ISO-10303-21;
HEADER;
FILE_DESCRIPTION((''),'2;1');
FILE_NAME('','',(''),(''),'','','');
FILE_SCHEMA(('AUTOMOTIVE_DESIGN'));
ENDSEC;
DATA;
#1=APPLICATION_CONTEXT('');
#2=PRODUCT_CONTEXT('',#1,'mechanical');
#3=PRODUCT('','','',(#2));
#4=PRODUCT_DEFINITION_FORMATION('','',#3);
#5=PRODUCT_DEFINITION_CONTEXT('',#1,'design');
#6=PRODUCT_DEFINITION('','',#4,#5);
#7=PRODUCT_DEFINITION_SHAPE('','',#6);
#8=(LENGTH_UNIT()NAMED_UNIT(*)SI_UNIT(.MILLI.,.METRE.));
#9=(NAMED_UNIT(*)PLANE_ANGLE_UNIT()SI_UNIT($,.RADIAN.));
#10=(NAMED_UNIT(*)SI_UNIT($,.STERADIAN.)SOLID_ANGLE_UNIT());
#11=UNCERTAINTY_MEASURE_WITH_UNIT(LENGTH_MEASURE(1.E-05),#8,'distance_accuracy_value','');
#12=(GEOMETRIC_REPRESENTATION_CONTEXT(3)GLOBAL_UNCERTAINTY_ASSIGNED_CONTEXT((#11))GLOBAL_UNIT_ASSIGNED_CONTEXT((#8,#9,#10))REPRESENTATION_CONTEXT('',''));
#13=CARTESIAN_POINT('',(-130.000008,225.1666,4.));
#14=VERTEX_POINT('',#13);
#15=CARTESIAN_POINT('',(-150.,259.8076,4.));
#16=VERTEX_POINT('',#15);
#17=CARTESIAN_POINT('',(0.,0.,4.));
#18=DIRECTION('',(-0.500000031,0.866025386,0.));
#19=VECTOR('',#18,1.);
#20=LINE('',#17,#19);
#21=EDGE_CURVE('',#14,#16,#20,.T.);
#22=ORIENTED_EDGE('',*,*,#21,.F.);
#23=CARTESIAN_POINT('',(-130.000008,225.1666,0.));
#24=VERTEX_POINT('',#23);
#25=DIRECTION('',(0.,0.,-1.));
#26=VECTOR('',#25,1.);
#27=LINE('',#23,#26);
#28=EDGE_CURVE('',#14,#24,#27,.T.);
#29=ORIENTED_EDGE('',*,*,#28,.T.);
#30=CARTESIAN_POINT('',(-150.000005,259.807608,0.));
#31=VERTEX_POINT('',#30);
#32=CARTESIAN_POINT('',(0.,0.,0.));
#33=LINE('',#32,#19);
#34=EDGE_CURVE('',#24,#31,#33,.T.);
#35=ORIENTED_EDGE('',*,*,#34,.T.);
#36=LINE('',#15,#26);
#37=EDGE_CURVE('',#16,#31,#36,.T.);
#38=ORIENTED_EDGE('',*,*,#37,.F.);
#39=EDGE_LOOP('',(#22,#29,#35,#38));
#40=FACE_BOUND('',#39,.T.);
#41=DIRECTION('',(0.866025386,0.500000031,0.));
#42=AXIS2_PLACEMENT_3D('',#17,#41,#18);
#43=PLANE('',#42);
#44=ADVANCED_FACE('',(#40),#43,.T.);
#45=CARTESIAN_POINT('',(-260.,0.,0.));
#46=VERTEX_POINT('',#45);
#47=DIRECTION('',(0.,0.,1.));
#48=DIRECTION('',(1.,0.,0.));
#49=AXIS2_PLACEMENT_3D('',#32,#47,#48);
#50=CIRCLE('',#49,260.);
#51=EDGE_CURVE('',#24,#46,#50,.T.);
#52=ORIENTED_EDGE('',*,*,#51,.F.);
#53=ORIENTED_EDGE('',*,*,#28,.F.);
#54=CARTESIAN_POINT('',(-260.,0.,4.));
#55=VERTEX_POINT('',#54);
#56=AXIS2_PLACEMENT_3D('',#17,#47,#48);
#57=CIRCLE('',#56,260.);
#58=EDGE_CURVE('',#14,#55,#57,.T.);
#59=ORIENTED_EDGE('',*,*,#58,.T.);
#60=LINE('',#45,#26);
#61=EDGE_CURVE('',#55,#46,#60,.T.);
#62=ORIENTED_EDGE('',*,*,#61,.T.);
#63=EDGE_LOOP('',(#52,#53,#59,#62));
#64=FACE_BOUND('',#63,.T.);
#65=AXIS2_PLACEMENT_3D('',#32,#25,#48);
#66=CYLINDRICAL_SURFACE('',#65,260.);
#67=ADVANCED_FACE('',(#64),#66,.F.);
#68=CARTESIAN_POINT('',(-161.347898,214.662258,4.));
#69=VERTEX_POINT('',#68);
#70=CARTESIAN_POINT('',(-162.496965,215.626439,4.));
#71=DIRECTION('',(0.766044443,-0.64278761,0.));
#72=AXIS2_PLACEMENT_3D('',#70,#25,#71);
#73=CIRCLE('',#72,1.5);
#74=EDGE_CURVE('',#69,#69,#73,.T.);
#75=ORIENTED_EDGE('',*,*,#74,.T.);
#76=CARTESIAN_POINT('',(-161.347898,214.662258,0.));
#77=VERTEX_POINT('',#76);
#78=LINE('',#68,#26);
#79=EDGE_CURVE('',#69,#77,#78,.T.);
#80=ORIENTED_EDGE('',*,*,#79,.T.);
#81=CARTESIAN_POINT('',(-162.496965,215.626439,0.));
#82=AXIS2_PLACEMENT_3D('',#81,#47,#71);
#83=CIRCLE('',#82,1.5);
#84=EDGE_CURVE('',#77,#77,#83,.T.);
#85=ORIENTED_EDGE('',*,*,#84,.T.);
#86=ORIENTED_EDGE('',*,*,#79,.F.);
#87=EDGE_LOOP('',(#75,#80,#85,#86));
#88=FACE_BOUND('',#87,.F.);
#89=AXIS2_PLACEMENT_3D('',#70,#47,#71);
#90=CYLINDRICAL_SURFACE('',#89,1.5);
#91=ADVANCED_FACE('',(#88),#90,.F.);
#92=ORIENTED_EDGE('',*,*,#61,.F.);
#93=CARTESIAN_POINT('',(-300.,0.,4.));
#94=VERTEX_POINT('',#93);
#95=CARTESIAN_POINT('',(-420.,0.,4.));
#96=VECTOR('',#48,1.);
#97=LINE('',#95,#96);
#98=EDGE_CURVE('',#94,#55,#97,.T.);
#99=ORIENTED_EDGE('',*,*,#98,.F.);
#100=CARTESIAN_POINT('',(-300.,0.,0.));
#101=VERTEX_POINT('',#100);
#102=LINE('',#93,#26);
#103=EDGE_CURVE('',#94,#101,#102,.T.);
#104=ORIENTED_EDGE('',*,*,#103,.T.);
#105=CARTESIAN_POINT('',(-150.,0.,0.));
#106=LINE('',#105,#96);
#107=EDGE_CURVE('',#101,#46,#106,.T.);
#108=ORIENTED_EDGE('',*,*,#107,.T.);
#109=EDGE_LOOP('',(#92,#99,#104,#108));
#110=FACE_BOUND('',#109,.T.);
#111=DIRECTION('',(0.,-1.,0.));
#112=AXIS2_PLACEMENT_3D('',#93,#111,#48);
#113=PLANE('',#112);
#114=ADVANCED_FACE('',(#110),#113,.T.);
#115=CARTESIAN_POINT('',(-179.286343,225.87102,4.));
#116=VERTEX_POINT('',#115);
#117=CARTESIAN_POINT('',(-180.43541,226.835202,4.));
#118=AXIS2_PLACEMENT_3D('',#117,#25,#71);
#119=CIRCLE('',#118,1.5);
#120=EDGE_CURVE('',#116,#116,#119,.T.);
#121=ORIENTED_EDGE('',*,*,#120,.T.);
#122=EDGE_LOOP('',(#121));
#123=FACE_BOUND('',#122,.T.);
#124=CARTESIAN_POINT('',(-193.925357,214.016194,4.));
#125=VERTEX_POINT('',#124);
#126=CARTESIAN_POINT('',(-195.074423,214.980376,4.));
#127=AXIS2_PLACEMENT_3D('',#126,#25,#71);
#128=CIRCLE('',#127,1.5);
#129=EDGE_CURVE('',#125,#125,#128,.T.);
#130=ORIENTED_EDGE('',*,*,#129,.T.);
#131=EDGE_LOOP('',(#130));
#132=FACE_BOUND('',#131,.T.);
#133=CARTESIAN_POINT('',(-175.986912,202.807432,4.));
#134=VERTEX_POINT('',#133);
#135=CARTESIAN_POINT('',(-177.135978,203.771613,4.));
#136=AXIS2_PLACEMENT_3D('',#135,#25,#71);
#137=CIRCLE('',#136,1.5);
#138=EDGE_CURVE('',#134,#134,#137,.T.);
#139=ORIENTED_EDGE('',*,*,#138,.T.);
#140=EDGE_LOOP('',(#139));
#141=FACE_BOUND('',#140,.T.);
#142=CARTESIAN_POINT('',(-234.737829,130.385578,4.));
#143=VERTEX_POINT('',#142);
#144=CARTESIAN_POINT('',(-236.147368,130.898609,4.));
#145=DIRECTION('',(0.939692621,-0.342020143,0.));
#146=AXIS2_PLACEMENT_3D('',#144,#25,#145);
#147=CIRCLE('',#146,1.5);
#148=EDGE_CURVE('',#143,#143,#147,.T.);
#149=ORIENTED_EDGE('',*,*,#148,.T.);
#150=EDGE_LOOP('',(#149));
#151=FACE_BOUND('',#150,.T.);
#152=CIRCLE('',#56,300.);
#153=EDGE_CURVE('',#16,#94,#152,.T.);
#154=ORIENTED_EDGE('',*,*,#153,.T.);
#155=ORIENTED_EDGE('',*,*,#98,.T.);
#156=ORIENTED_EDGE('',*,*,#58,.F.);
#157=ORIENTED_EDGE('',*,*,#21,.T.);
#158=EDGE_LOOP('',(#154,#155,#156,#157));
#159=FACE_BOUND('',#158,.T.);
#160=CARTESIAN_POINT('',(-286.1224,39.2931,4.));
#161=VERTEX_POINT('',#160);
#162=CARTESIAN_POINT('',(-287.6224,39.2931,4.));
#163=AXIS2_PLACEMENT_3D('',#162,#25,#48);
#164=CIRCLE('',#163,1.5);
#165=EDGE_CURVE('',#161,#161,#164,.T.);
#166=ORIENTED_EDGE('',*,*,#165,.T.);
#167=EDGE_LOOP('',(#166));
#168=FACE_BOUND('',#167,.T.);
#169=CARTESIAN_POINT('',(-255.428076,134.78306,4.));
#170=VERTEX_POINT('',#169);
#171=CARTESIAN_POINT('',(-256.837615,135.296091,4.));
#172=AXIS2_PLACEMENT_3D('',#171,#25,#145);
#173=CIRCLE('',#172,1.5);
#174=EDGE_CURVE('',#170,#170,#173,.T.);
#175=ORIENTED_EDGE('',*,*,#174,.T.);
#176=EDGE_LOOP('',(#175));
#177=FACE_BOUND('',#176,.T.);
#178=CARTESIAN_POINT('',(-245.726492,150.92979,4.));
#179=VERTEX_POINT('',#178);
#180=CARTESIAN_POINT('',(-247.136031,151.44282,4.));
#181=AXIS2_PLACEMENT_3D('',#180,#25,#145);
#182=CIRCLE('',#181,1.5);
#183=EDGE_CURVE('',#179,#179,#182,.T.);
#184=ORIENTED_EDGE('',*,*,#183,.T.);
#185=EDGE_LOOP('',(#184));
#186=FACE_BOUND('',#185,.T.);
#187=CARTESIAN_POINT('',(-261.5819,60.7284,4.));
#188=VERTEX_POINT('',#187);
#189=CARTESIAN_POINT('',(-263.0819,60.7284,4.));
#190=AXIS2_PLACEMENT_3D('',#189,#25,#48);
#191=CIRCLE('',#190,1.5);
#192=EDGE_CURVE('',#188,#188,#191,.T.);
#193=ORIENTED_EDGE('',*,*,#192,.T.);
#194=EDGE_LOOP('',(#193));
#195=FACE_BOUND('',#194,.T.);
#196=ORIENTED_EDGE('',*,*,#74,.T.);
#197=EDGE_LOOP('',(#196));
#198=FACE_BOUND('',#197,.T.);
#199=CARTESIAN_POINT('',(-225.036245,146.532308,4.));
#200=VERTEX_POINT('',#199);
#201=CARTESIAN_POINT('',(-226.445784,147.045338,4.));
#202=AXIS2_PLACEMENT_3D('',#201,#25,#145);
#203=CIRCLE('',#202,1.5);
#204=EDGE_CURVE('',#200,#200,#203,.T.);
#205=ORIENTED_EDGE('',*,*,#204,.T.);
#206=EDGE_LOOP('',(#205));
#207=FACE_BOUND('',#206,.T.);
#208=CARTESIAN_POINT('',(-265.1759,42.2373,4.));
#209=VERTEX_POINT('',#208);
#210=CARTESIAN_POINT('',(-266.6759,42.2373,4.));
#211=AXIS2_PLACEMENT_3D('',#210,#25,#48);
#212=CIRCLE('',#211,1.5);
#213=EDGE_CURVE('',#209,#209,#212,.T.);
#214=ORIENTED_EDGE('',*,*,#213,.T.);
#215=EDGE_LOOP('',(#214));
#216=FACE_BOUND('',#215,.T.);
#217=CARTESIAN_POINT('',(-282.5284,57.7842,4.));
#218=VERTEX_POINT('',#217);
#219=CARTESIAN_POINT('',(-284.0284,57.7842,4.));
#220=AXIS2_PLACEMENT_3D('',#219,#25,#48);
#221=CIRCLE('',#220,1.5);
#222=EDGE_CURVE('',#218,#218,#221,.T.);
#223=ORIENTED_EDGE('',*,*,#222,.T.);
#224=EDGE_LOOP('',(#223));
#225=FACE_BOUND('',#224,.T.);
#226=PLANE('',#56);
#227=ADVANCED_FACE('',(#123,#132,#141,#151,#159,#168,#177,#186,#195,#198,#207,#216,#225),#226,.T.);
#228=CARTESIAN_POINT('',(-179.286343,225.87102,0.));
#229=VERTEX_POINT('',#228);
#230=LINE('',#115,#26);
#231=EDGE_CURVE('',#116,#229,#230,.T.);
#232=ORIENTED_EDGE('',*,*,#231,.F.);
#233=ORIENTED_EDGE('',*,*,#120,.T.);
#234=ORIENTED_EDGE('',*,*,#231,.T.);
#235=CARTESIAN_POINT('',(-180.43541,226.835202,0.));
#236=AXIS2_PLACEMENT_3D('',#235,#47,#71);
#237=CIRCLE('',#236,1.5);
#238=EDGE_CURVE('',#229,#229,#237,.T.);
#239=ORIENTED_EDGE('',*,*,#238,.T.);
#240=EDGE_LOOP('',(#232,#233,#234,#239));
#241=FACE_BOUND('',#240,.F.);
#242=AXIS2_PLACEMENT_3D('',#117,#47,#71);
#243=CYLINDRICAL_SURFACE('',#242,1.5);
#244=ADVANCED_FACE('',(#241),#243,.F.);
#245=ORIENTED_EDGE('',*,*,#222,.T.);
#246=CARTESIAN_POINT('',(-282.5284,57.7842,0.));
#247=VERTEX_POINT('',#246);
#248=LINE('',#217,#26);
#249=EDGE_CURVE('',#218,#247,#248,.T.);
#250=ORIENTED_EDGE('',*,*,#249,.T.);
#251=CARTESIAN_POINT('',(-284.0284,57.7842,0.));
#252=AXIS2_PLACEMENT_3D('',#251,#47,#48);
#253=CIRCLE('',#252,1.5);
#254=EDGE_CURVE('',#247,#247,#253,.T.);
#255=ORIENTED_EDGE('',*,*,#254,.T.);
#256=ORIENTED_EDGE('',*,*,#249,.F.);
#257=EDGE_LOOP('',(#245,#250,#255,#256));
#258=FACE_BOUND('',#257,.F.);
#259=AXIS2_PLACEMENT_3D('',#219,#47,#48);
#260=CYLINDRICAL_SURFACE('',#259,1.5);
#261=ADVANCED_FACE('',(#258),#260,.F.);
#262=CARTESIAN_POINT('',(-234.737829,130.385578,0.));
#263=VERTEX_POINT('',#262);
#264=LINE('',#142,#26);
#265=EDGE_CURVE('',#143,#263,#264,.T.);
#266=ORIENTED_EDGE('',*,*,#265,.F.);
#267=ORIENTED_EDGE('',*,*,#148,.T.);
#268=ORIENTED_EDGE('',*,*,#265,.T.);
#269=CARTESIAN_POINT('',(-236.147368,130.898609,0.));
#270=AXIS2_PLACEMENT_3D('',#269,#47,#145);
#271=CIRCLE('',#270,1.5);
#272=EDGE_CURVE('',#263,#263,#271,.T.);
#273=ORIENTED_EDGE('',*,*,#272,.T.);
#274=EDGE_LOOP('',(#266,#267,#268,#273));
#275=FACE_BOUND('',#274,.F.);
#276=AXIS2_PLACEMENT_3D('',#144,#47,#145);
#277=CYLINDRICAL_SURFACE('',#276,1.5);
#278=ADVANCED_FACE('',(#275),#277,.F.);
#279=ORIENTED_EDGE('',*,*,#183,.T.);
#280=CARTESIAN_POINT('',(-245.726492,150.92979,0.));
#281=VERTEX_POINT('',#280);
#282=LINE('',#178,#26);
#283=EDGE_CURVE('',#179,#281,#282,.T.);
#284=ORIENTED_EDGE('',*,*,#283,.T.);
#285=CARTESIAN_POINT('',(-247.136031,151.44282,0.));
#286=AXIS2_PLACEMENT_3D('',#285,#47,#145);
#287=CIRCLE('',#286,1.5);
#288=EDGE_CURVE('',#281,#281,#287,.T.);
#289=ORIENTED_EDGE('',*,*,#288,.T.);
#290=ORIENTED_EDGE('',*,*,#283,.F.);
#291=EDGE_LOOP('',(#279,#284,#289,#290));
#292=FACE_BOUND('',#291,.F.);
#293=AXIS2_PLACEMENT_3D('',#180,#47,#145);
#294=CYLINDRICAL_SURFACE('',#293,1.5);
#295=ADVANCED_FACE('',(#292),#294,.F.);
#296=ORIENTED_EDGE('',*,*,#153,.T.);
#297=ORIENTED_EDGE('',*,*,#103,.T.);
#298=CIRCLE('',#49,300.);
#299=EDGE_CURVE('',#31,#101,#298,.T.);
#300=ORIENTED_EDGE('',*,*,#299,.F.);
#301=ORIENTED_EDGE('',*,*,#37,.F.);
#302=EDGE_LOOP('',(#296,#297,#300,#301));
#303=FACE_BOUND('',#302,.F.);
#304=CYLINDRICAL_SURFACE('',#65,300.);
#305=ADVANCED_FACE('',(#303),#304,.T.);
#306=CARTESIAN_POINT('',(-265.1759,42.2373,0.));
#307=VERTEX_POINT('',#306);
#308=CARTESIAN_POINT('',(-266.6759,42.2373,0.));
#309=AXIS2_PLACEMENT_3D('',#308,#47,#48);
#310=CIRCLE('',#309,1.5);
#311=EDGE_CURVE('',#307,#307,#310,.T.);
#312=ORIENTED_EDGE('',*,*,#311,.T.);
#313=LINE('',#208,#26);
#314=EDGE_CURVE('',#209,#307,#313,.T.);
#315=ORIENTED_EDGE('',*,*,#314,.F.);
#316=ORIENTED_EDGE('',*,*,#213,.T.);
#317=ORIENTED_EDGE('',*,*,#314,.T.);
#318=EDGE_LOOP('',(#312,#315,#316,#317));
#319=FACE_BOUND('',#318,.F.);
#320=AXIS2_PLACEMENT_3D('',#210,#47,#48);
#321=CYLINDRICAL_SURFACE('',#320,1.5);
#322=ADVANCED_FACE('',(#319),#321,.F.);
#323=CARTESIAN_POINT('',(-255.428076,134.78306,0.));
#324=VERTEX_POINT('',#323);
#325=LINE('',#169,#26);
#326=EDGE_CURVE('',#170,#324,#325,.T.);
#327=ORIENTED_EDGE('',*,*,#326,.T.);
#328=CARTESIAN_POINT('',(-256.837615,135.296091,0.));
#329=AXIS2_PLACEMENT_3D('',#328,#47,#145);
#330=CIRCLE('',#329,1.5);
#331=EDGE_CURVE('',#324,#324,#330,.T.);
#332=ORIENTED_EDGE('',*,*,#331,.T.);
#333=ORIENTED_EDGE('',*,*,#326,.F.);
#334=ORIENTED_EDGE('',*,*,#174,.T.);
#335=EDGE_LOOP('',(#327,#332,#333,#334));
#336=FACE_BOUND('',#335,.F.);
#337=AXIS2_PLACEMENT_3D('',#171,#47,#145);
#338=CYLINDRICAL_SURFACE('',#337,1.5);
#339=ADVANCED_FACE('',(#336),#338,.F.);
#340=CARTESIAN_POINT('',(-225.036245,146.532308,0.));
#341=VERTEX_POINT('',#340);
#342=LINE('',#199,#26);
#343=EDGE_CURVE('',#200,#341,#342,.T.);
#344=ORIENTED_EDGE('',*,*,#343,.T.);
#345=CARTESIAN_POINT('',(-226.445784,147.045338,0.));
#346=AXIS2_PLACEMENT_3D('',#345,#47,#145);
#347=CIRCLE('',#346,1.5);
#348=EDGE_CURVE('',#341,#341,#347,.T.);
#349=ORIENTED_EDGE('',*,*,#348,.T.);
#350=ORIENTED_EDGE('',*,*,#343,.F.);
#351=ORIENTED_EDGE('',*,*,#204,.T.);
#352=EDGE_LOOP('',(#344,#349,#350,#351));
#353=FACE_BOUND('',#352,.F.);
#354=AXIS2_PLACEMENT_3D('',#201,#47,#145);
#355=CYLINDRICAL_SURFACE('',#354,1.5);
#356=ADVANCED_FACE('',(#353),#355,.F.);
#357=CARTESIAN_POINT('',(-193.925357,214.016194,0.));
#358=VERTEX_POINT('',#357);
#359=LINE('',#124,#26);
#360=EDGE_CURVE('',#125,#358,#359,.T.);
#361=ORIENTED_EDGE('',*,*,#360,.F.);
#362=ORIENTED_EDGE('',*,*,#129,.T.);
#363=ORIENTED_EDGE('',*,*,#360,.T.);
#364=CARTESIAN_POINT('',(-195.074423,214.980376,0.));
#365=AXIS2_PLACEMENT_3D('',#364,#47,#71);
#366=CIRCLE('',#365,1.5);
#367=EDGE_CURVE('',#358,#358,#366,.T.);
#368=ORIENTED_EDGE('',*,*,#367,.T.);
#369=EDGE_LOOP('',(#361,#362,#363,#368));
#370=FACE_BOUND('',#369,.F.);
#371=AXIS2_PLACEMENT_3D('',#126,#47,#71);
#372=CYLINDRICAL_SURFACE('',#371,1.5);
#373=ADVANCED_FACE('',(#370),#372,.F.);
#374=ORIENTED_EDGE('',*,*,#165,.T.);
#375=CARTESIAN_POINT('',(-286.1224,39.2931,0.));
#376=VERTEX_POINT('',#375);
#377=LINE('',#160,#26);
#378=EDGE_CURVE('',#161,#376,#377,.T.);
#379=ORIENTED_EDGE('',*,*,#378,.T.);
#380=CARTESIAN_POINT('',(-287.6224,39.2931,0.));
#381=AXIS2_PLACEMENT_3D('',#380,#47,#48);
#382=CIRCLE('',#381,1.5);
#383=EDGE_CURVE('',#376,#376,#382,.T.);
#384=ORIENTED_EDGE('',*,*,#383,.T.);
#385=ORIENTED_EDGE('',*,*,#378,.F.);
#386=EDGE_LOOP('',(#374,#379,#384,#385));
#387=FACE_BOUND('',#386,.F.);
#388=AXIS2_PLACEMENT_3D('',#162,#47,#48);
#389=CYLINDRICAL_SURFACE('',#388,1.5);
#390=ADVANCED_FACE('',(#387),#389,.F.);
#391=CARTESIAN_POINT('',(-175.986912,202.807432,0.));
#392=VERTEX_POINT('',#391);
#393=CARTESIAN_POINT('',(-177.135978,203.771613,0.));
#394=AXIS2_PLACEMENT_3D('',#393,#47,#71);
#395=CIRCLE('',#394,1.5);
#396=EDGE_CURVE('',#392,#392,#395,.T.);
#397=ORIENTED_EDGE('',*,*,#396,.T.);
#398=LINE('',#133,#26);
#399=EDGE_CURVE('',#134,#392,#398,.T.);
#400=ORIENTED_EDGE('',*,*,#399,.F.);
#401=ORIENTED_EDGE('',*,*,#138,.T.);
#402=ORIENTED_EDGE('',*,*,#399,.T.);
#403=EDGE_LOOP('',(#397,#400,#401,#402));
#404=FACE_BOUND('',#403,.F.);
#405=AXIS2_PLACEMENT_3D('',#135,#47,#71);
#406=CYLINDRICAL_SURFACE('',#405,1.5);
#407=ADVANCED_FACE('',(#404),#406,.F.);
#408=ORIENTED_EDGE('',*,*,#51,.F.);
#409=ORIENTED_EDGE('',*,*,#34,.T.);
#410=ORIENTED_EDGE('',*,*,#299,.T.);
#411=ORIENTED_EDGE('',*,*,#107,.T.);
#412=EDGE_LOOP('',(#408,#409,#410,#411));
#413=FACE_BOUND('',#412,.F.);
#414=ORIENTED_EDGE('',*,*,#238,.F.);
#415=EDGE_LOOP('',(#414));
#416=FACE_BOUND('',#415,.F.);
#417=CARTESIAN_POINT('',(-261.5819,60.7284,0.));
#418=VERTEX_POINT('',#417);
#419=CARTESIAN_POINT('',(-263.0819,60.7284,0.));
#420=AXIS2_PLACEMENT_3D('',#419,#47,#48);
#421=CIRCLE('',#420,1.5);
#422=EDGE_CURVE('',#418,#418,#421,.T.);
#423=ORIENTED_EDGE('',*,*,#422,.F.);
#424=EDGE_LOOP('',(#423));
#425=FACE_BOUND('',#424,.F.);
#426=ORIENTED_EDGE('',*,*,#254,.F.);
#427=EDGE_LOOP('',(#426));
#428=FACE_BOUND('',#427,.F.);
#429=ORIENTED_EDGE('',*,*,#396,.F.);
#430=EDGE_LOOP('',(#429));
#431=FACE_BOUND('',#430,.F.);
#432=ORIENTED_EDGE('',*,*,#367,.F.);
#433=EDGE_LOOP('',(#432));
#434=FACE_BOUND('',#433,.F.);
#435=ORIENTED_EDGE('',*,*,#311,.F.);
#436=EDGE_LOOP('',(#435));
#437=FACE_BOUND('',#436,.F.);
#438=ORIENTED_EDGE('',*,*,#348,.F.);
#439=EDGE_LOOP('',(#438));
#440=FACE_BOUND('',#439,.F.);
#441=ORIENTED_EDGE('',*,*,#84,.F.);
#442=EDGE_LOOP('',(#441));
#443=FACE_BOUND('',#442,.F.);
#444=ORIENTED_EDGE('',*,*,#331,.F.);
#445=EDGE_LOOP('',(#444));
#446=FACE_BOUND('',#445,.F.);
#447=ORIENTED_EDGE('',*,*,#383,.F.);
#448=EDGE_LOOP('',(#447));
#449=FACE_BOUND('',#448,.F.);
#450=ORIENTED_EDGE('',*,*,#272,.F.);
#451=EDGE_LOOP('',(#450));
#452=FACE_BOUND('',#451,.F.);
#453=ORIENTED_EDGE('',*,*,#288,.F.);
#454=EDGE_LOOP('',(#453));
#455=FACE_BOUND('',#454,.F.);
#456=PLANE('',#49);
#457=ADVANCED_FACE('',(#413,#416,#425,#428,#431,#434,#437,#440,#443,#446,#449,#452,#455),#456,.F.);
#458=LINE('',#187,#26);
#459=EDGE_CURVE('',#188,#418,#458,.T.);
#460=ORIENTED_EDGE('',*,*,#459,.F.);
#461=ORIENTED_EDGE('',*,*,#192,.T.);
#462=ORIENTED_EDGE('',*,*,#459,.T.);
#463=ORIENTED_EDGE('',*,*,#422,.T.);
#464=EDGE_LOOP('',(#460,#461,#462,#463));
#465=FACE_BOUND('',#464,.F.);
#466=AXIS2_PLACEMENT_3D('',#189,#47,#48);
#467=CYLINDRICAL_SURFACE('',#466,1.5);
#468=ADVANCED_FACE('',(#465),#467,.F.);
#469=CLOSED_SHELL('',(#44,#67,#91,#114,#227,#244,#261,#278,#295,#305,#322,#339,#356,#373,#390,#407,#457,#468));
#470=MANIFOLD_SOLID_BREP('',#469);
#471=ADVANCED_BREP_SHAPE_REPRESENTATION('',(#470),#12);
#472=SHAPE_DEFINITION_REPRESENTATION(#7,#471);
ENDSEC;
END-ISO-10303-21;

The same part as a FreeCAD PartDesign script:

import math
import FreeCAD as App
import Part
import Sketcher
from FreeCAD import Vector
Q = App.Units.Quantity

doc = App.newDocument("Part")
params = doc.addObject("Spreadsheet::Sheet", "Params")
for row, (alias, value) in enumerate([
    ("sketch1_diameter", "600 mm"),
    ("sketch1_diameter2", "520 mm"),
    ("pad1_length", "4 mm"),
    ("sketch2_radius", "300 mm"),
    ("pocket1_length", "10 mm"),
    ("sketch3_diameter", "3 mm"),
], start=1):
    params.set(f"A{row}", alias)
    params.set(f"B{row}", "=" + value)
    params.setAlias(f"B{row}", alias)

body = doc.addObject("PartDesign::Body", "Body")

sketch1 = body.newObject("Sketcher::SketchObject", "Sketch")
sketch1.AttachmentSupport = (doc.getObject("XY_Plane"), [""])
sketch1.MapMode = "FlatFace"
sketch1.addGeometry([
    Part.Circle(Vector(0, 0, 0), Vector(0, 0, 1), 300),
    Part.Circle(Vector(0, 0, 0), Vector(0, 0, 1), 260),
], False)
sketch1.addConstraint([
    Sketcher.Constraint("Coincident", 0, 3, -1, 1),
    Sketcher.Constraint("Coincident", 1, 3, -1, 1),
    Sketcher.Constraint("Diameter", 0, 600.0),
    Sketcher.Constraint("Diameter", 1, 520.0),
])
sketch1.setExpression("Constraints[2]", "Params.sketch1_diameter")
sketch1.setExpression("Constraints[3]", "Params.sketch1_diameter2")
pad1 = body.newObject("PartDesign::Pad", "Pad")
pad1.Profile = sketch1
pad1.setExpression("Length", "Params.pad1_length")

sketch2 = body.newObject("Sketcher::SketchObject", "Sketch001")
sketch2.AttachmentSupport = (doc.getObject("XY_Plane"), [""])
sketch2.MapMode = "FlatFace"
sketch2.AttachmentOffset = App.Placement(Vector(0, 0, 4), App.Rotation())
sketch2.addGeometry([
    Part.LineSegment(Vector(-150, 259.8076, 0), Vector(0, 0, 0)),
    Part.LineSegment(Vector(0, 0, 0), Vector(-300, 0, 0)),
    Part.ArcOfCircle(Part.Circle(Vector(0, 0, 0), Vector(0, 0, 1), 300), math.radians(180), math.radians(480.000002)),
], False)
sketch2.addConstraint([
    Sketcher.Constraint("Coincident", 0, 2, 1, 1),
    Sketcher.Constraint("Coincident", 1, 2, 2, 1),
    Sketcher.Constraint("Coincident", 2, 2, 0, 1),
    Sketcher.Constraint("Horizontal", 1),
    Sketcher.Constraint("Coincident", 2, 3, -1, 1),
    Sketcher.Constraint("Coincident", 0, 2, -1, 1),
    Sketcher.Constraint("Angle", 0, Q("-60 deg")),
    Sketcher.Constraint("Radius", 2, 300.0),
])
sketch2.setExpression("Constraints[7]", "Params.sketch2_radius")
pocket1 = body.newObject("PartDesign::Pocket", "Pocket")
pocket1.Profile = sketch2
pocket1.setExpression("Length", "Params.pocket1_length")

sketch3 = body.newObject("Sketcher::SketchObject", "Sketch002")
sketch3.AttachmentSupport = (doc.getObject("XY_Plane"), [""])
sketch3.MapMode = "FlatFace"
sketch3.AttachmentOffset = App.Placement(Vector(0, 0, 4), App.Rotation())
sketch3.addGeometry([
    Part.Circle(Vector(-287.6224, 39.2931, 0), Vector(0, 0, 1), 1.5),
    Part.Circle(Vector(-266.6759, 42.2373, 0), Vector(0, 0, 1), 1.5),
    Part.Circle(Vector(-284.0284, 57.7842, 0), Vector(0, 0, 1), 1.5),
    Part.Circle(Vector(-263.0819, 60.7284, 0), Vector(0, 0, 1), 1.5),
], False)
sketch3.addConstraint([
    Sketcher.Constraint("Equal", 0, 1),
    Sketcher.Constraint("Equal", 1, 2),
    Sketcher.Constraint("Equal", 2, 3),
    Sketcher.Constraint("Diameter", 0, 3.0),
    Sketcher.Constraint("DistanceY", -1, 1, 0, 3, 39.293),
    Sketcher.Constraint("DistanceX", 1, 3, -1, 1, 266.676),
    Sketcher.Constraint("DistanceX", 3, 3, -1, 1, 263.082),
    Sketcher.Constraint("DistanceX", 0, 3, 2, 3, 3.594),
    Sketcher.Constraint("DistanceY", 0, 3, 2, 3, 18.491),
    Sketcher.Constraint("DistanceY", 1, 3, 2, 3, 15.547),
    Sketcher.Constraint("DistanceY", 1, 3, 3, 3, 18.491),
    Sketcher.Constraint("DistanceX", 0, 3, -1, 1, 287.6224),
])
sketch3.setExpression("Constraints[3]", "Params.sketch3_diameter")
pocket2 = body.newObject("PartDesign::Pocket", "Pocket001")
pocket2.Profile = sketch3
pocket2.Type = "ThroughAll"
doc.recompute()

polarpattern = body.newObject("PartDesign::PolarPattern", "PolarPattern")
polarpattern.Originals = [pocket2]
polarpattern.Axis = (doc.getObject("Z_Axis"), [""])
polarpattern.Angle = 160
polarpattern.Occurrences = 9
polarpattern.Reversed = True
body.Tip = polarpattern

doc.recompute()
